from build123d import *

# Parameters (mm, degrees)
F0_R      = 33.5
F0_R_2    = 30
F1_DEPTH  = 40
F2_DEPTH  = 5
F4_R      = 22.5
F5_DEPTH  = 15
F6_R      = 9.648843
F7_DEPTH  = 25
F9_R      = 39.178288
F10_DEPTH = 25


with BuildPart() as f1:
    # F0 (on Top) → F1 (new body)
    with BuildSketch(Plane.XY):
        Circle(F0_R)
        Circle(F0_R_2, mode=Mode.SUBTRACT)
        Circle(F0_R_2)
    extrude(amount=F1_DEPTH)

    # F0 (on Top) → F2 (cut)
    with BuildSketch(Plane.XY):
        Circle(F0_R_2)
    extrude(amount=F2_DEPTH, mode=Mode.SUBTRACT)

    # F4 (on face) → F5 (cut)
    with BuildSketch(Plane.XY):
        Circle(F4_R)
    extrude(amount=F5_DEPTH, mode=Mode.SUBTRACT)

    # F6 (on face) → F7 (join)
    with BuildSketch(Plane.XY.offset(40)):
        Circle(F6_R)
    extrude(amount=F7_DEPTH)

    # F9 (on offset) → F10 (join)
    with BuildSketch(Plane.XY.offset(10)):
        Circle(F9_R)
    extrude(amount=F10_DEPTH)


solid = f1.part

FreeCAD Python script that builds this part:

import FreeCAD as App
import Part
import Sketcher
from FreeCAD import Vector
Q = App.Units.Quantity

doc = App.newDocument("Part")
body = doc.addObject("PartDesign::Body", "Body")

sketch1 = body.newObject("Sketcher::SketchObject", "Sketch")
sketch1.AttachmentSupport = (doc.getObject("XY_Plane"), [""])
sketch1.MapMode = "FlatFace"
sketch1.addGeometry(Part.Circle(Vector(0, 0, 0), Vector(0, 0, 1), 34), False)
sketch1.addConstraint([
    Sketcher.Constraint("Coincident", 0, 3, -1, 1),
    Sketcher.Constraint("Diameter", 0, Q("67 mm")),
])
pad1 = body.newObject("PartDesign::Pad", "Pad")
pad1.Profile = sketch1
pad1.Length = 40

sketch2 = body.newObject("Sketcher::SketchObject", "Sketch001")
sketch2.AttachmentSupport = (doc.getObject("XY_Plane"), [""])
sketch2.MapMode = "FlatFace"
sketch2.addGeometry(Part.Circle(Vector(0, 0, 0), Vector(0, 0, 1), 30), False)
sketch2.addConstraint([
    Sketcher.Constraint("Coincident", 0, 3, -1, 1),
    Sketcher.Constraint("Diameter", 0, Q("60 mm")),
])
pocket1 = body.newObject("PartDesign::Pocket", "Pocket")
pocket1.Profile = sketch2
pocket1.Length = 5
pocket1.Reversed = True

sketch3 = body.newObject("Sketcher::SketchObject", "Sketch002")
sketch3.AttachmentSupport = (doc.getObject("XY_Plane"), [""])
sketch3.MapMode = "FlatFace"
sketch3.addGeometry(Part.Circle(Vector(0, 0, 0), Vector(0, 0, 1), 22), False)
sketch3.addConstraint([
    Sketcher.Constraint("Coincident", 0, 3, -1, 1),
    Sketcher.Constraint("Diameter", 0, Q("45 mm")),
])
pocket2 = body.newObject("PartDesign::Pocket", "Pocket001")
pocket2.Profile = sketch3
pocket2.Length = 15
pocket2.Reversed = True

sketch4 = body.newObject("Sketcher::SketchObject", "Sketch003")
sketch4.AttachmentSupport = (doc.getObject("XY_Plane"), [""])
sketch4.MapMode = "FlatFace"
sketch4.AttachmentOffset = App.Placement(Vector(0, 0, 40), App.Rotation())
sketch4.addGeometry(Part.Circle(Vector(0, 0, 0), Vector(0, 0, 1), 10), False)
sketch4.addConstraint([
    Sketcher.Constraint("Coincident", 0, 3, -1, 1),
    Sketcher.Constraint("Diameter", 0, Q("19.297686 mm")),
])
pad2 = body.newObject("PartDesign::Pad", "Pad001")
pad2.Profile = sketch4
pad2.Length = 25

sketch5 = body.newObject("Sketcher::SketchObject", "Sketch004")
sketch5.AttachmentSupport = (doc.getObject("XY_Plane"), [""])
sketch5.MapMode = "FlatFace"
sketch5.AttachmentOffset = App.Placement(Vector(0, 0, 10), App.Rotation())
sketch5.addGeometry(Part.Circle(Vector(0, 0, 0), Vector(0, 0, 1), 39), False)
sketch5.addConstraint([
    Sketcher.Constraint("Coincident", 0, 3, -1, 1),
    Sketcher.Constraint("Diameter", 0, Q("78.356576 mm")),
])
pad3 = body.newObject("PartDesign::Pad", "Pad002")
pad3.Profile = sketch5
pad3.Length = 25

doc.recompute()
